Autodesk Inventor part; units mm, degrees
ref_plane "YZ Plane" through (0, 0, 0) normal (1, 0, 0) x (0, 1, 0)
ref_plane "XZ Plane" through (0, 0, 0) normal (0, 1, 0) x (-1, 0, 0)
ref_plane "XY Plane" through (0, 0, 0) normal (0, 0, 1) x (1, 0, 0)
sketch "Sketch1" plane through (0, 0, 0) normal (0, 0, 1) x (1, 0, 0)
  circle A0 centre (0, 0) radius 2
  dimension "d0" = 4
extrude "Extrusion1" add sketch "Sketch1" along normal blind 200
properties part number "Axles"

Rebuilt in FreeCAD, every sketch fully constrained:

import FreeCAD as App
import Part
import Sketcher

V = App.Vector

doc = App.newDocument("Part")
params = doc.addObject("Spreadsheet::Sheet", "Params")
for row, (alias, value) in enumerate([
    ("sketch1_diameter", "4 mm"),
    ("pad1_length", "200 mm"),
], start=1):
    params.set(f"A{row}", alias)
    params.set(f"B{row}", "=" + value)
    params.setAlias(f"B{row}", alias)

body = doc.addObject("PartDesign::Body", "Body")

sketch1 = doc.addObject("Sketcher::SketchObject", "Sketch")
body.addObject(sketch1)
sketch1.AttachmentSupport = (doc.XY_Plane, [""])
sketch1.MapMode = "FlatFace"
sketch1.addGeometry(Part.Circle(V(0, 0, 0), V(0, 0, 1), 2), False)
sketch1.addConstraint(Sketcher.Constraint("Coincident", 0, 3, -1, 1))
sketch1.addConstraint(Sketcher.Constraint("Diameter", 0, 4.0))
sketch1.setExpression("Constraints[1]", "Params.sketch1_diameter")
pad1 = doc.addObject("PartDesign::Pad", "Pad")
body.addObject(pad1)
pad1.Profile = sketch1
pad1.setExpression("Length", "Params.pad1_length")

doc.recompute()
